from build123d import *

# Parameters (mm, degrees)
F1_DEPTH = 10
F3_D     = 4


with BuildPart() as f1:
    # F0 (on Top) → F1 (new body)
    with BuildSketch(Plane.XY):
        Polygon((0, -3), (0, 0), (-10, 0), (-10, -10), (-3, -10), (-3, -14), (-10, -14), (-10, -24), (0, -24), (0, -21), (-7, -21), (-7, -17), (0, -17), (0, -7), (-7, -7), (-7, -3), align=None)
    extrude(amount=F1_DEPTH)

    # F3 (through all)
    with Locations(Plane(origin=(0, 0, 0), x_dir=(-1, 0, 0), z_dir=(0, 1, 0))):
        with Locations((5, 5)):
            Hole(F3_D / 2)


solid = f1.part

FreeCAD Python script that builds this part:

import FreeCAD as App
import Part
import Sketcher
from FreeCAD import Vector
Q = App.Units.Quantity

doc = App.newDocument("Part")
body = doc.addObject("PartDesign::Body", "Body")

# Sketch on XY plane
sketch1 = body.newObject("Sketcher::SketchObject", "Sketch")
sketch1.AttachmentSupport = (doc.getObject("XY_Plane"), [""])
sketch1.MapMode = "FlatFace"
sketch1.addGeometry([
    Part.LineSegment(Vector(0, -3, 0), Vector(0, 0, 0)),  # 0
    Part.LineSegment(Vector(0, 0, 0), Vector(-10, 0, 0)),  # 1
    Part.LineSegment(Vector(-10, 0, 0), Vector(-10, -10, 0)),  # 2
    Part.LineSegment(Vector(-10, -10, 0), Vector(-3, -10, 0)),  # 3
    Part.LineSegment(Vector(-3, -10, 0), Vector(-3, -14, 0)),  # 4
    Part.LineSegment(Vector(-3, -14, 0), Vector(-10, -14, 0)),  # 5
    Part.LineSegment(Vector(-10, -14, 0), Vector(-10, -24, 0)),  # 6
    Part.LineSegment(Vector(-10, -24, 0), Vector(0, -24, 0)),  # 7
    Part.LineSegment(Vector(0, -24, 0), Vector(0, -21, 0)),  # 8
    Part.LineSegment(Vector(0, -21, 0), Vector(-7, -21, 0)),  # 9
    Part.LineSegment(Vector(-7, -21, 0), Vector(-7, -17, 0)),  # 10
    Part.LineSegment(Vector(-7, -17, 0), Vector(0, -17, 0)),  # 11
    Part.LineSegment(Vector(0, -17, 0), Vector(0, -7, 0)),  # 12
    Part.LineSegment(Vector(0, -7, 0), Vector(-7, -7, 0)),  # 13
    Part.LineSegment(Vector(-7, -7, 0), Vector(-7, -3, 0)),  # 14
    Part.LineSegment(Vector(-7, -3, 0), Vector(0, -3, 0)),  # 15
], False)
sketch1.addConstraint([
    Sketcher.Constraint("Coincident", 0, 2, 1, 1),
    Sketcher.Constraint("Coincident", 1, 2, 2, 1),
    Sketcher.Constraint("Coincident", 2, 2, 3, 1),
    Sketcher.Constraint("Coincident", 3, 2, 4, 1),
    Sketcher.Constraint("Coincident", 4, 2, 5, 1),
    Sketcher.Constraint("Coincident", 5, 2, 6, 1),
    Sketcher.Constraint("Coincident", 6, 2, 7, 1),
    Sketcher.Constraint("Coincident", 7, 2, 8, 1),
    Sketcher.Constraint("Coincident", 8, 2, 9, 1),
    Sketcher.Constraint("Coincident", 9, 2, 10, 1),
    Sketcher.Constraint("Coincident", 10, 2, 11, 1),
    Sketcher.Constraint("Coincident", 11, 2, 12, 1),
    Sketcher.Constraint("Coincident", 12, 2, 13, 1),
    Sketcher.Constraint("Coincident", 13, 2, 14, 1),
    Sketcher.Constraint("Coincident", 14, 2, 15, 1),
    Sketcher.Constraint("Coincident", 15, 2, 0, 1),
    Sketcher.Constraint("Vertical", 0),
    Sketcher.Constraint("Horizontal", 1),
    Sketcher.Constraint("Vertical", 2),
    Sketcher.Constraint("Horizontal", 3),
    Sketcher.Constraint("Vertical", 4),
    Sketcher.Constraint("Horizontal", 5),
    Sketcher.Constraint("Vertical", 6),
    Sketcher.Constraint("Horizontal", 7),
    Sketcher.Constraint("Vertical", 8),
    Sketcher.Constraint("Horizontal", 9),
    Sketcher.Constraint("Vertical", 10),
    Sketcher.Constraint("Horizontal", 11),
    Sketcher.Constraint("Vertical", 12),
    Sketcher.Constraint("Horizontal", 13),
    Sketcher.Constraint("Vertical", 14),
    Sketcher.Constraint("Horizontal", 15),
    Sketcher.Constraint("Coincident", 0, 2, -1, 1),
    Sketcher.Constraint("PointOnObject", 7, 2, -2),
    Sketcher.Constraint("PointOnObject", 11, 2, -2),
    Sketcher.Constraint("Vertical", 2, 2, 5, 2),
    Sketcher.Constraint("Vertical", 10, 2, 13, 2),
    Sketcher.Constraint("Equal", 5, 9),
    Sketcher.Constraint("Equal", 7, 2),
    Sketcher.Constraint("Equal", 2, 6),
    Sketcher.Constraint("Equal", 0, 8),
    Sketcher.Constraint("Equal", 4, 10),
    Sketcher.Constraint("Equal", 6, 12),
    Sketcher.Constraint("Equal", 10, 14),
    Sketcher.Constraint("DistanceX", 1, 2, 1, 1, Q("10 mm")),
    Sketcher.Constraint("DistanceX", 3, 1, 3, 2, Q("7 mm")),
    Sketcher.Constraint("DistanceY", 0, 1, 0, 2, Q("3 mm")),
])
pad1 = body.newObject("PartDesign::Pad", "Pad")
pad1.Profile = sketch1
pad1.Length = 10

# Sketch on XZ plane
sketch2 = body.newObject("Sketcher::SketchObject", "Sketch001")
sketch2.AttachmentSupport = (doc.getObject("XZ_Plane"), [""])
sketch2.MapMode = "FlatFace"
sketch2.addGeometry(Part.Circle(Vector(-5, 5, 0), Vector(0, 0, 1), 2), False)
sketch2.addConstraint([
    Sketcher.Constraint("Diameter", 0, Q("4 mm")),
    Sketcher.Constraint("DistanceX", 0, 3, -1, 1, Q("5 mm")),
    Sketcher.Constraint("DistanceY", -1, 1, 0, 3, Q("5 mm")),
])
doc.recompute()
hole = body.newObject("PartDesign::Hole", "Hole")
hole.Profile = sketch2
hole.ThreadType = "None"
hole.Diameter = 4
hole.DepthType = "ThroughAll"
hole.Reversed = True

doc.recompute()
